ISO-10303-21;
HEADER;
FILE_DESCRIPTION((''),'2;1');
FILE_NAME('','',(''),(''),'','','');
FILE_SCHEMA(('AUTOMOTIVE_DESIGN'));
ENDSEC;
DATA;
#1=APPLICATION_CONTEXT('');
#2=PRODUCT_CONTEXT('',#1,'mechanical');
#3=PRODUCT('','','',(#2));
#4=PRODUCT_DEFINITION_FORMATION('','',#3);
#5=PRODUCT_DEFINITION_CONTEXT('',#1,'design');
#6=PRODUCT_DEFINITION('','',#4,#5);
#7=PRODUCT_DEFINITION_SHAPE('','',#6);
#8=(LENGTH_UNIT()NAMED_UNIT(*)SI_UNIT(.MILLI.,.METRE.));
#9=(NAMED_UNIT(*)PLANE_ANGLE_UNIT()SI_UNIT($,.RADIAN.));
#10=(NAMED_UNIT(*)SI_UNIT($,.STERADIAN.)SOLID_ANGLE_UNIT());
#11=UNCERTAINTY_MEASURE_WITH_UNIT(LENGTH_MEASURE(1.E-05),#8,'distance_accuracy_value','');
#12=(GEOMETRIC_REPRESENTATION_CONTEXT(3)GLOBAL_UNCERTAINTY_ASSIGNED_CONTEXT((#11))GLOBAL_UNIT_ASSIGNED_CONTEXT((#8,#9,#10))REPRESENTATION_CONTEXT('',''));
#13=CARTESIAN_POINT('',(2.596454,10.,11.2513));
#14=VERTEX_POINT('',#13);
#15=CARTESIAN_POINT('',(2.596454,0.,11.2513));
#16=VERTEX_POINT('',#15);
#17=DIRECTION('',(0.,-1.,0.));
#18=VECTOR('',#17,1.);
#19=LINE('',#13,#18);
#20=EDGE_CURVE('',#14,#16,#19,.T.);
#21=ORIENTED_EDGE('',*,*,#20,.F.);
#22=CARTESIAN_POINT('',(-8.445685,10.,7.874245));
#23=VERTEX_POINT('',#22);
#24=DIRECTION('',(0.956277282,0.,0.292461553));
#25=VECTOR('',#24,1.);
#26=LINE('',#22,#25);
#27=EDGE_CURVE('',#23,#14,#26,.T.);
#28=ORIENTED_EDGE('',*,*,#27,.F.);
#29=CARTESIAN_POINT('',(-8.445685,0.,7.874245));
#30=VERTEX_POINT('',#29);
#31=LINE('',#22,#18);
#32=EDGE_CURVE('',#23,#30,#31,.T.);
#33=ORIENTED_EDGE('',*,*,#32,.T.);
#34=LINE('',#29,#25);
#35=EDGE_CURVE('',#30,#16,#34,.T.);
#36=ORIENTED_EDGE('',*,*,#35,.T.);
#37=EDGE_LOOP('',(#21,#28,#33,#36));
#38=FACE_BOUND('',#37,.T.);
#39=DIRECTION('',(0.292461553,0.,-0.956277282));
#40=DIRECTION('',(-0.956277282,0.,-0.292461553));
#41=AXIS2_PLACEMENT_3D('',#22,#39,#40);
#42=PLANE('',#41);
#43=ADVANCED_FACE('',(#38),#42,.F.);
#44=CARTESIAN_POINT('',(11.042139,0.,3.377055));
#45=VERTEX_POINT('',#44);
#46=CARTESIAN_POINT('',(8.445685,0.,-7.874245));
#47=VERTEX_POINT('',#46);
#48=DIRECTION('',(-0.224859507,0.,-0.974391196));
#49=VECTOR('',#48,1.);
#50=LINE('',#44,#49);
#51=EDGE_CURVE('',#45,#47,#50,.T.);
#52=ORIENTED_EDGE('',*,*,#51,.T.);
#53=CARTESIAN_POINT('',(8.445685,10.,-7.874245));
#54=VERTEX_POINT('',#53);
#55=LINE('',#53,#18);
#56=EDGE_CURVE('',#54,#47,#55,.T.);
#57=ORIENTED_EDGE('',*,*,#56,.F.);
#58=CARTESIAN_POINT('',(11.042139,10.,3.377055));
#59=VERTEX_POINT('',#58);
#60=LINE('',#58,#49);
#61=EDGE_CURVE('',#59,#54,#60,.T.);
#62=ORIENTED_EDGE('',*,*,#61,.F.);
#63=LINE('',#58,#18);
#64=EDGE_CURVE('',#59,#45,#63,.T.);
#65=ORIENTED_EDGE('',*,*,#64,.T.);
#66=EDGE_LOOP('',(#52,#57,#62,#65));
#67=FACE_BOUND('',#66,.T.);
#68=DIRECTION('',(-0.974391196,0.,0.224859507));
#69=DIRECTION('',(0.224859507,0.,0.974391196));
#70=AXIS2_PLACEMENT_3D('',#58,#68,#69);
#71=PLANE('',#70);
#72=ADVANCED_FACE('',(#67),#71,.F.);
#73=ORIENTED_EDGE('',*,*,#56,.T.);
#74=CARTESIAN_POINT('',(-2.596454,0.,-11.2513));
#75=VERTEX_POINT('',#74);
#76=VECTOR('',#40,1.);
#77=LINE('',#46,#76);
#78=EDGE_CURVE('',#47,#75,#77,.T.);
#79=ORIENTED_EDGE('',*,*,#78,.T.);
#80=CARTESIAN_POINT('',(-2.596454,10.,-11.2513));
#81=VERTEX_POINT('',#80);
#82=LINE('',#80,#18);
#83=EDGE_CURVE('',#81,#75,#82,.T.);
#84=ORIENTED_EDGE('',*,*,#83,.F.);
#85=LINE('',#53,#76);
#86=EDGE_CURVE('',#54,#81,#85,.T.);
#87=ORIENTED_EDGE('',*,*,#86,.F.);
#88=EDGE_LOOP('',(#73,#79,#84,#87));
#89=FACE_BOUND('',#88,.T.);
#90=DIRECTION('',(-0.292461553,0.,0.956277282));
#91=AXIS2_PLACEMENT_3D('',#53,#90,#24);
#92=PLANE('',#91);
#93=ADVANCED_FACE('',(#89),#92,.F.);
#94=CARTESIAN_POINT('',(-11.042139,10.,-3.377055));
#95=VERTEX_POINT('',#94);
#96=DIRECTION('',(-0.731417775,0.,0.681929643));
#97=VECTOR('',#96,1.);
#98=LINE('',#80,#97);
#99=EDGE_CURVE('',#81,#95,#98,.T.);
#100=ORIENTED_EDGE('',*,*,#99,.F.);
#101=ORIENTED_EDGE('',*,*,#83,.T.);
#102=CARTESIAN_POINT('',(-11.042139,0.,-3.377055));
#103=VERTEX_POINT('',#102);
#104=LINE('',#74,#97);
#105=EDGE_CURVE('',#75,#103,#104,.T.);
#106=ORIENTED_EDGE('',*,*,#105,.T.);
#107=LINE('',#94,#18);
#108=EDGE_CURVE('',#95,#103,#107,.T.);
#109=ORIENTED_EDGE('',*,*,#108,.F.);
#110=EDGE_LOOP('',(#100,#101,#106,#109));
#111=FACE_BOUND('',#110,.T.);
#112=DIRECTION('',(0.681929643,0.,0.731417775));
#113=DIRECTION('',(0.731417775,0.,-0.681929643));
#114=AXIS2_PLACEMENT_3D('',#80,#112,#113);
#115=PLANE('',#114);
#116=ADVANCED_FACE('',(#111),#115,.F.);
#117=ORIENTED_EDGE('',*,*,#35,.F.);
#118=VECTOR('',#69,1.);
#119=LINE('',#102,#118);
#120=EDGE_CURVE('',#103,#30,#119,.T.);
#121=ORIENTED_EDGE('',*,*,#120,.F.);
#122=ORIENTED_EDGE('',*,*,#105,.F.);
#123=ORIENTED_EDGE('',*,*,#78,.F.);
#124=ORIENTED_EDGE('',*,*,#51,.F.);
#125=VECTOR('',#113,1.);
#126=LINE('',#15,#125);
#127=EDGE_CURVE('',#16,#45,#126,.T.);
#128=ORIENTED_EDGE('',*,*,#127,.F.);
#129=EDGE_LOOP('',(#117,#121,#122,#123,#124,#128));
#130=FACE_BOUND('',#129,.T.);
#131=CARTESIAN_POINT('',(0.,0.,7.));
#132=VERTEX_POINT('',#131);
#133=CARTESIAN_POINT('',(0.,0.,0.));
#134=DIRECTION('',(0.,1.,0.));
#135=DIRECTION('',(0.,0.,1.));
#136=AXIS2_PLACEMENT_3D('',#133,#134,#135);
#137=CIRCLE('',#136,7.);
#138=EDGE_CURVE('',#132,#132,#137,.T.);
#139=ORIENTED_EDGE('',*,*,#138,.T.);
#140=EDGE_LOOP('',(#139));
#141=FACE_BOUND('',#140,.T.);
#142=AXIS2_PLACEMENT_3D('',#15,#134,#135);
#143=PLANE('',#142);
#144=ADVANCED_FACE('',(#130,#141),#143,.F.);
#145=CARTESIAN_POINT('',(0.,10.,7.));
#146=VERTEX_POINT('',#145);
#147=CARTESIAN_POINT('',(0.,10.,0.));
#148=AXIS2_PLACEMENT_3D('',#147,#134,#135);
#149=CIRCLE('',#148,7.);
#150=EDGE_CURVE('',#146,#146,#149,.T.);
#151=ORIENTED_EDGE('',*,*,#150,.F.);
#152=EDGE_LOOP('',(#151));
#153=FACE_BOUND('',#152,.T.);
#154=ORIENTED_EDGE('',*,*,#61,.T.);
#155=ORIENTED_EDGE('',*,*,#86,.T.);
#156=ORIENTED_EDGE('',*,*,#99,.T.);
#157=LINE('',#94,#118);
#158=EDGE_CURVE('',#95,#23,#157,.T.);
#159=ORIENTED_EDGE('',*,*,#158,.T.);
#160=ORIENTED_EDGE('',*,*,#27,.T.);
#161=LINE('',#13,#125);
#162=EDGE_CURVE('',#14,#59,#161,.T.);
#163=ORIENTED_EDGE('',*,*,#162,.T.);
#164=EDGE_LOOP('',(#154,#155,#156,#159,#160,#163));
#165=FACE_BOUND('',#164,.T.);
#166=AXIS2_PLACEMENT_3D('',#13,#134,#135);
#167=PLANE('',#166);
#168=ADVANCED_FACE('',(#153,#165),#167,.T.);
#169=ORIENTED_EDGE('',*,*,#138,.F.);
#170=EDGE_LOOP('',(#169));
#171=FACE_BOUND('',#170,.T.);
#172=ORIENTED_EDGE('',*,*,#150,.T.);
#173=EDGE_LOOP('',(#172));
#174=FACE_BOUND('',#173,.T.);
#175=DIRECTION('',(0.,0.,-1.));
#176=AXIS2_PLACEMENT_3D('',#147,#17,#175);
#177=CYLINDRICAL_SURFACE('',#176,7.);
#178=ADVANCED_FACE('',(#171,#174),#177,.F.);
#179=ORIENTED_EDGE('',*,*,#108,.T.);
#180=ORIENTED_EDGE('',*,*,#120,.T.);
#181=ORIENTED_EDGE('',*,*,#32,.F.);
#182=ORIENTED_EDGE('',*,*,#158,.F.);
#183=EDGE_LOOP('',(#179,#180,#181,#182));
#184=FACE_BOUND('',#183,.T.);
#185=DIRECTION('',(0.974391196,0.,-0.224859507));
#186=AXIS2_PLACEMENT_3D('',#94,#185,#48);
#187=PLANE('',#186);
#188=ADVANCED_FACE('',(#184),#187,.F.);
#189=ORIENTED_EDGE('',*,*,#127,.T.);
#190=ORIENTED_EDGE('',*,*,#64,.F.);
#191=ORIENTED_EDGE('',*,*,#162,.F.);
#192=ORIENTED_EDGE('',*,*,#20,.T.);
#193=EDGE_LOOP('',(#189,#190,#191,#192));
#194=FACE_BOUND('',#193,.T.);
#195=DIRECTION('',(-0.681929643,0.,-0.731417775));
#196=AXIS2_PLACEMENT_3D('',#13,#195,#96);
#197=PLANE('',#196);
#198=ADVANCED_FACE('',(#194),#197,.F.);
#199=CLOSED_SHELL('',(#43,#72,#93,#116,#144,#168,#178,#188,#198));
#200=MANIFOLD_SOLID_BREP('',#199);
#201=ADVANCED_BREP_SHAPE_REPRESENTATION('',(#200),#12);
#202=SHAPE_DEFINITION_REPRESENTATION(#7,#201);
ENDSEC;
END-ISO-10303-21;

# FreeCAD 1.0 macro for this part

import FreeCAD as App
import Part
import Sketcher
Q = App.Units.Quantity


def add_polygon(sketch, points):
    """Adds a closed chain of lines whose ends are joined by coincident constraints."""
    first, n = sketch.GeometryCount, len(points)
    for a, b in zip(points, points[1:] + points[:1]):
        sketch.addGeometry(Part.LineSegment(App.Vector(*a, 0), App.Vector(*b, 0)), False)
    for i in range(n):
        sketch.addConstraint(Sketcher.Constraint("Coincident", first + i, 2, first + (i + 1) % n, 1))

doc = App.newDocument("Part")
body = doc.addObject("PartDesign::Body", "Body")

# Sketch on XZ plane
sketch1 = body.newObject("Sketcher::SketchObject", "Sketch")
sketch1.AttachmentSupport = (doc.getObject("XZ_Plane"), [""])
sketch1.MapMode = "FlatFace"
add_polygon(sketch1, [(3, 11), (11, 3), (8, -8), (-3, -11), (-11, -3), (-8, 8)])  # lines 0-5
sketch1.addGeometry(Part.Circle(App.Vector(0, 0, 0), App.Vector(0, 0, 1), 7), False)  # 6
sketch1.addConstraint([
    Sketcher.Constraint("Coincident", 6, 3, -1, 1),
    Sketcher.Constraint("Symmetric", 0, 2, 3, 2, -1, 1),
    Sketcher.Constraint("Symmetric", 1, 2, 4, 2, -1, 1),
    Sketcher.Constraint("Symmetric", 2, 2, 5, 2, -1, 1),
    Sketcher.Constraint("Equal", 0, 1),
    Sketcher.Constraint("Equal", 1, 2),
    Sketcher.Constraint("Diameter", 6, Q("14 mm")),
    Sketcher.Constraint("DistanceY", 2, 2, -1, 1, Q("11.2513 mm")),
    Sketcher.Constraint("DistanceY", 1, 2, 0, 2, Q("11.2513 mm")),
    Sketcher.Constraint("DistanceX", -1, 1, 0, 2, Q("11.042139 mm")),
    Sketcher.Constraint("DistanceX", 2, 2, 1, 2, Q("11.042139 mm")),
])
pad1 = body.newObject("PartDesign::Pad", "Pad")
pad1.Profile = sketch1
pad1.Length = 10
pad1.Reversed = True

doc.recompute()
